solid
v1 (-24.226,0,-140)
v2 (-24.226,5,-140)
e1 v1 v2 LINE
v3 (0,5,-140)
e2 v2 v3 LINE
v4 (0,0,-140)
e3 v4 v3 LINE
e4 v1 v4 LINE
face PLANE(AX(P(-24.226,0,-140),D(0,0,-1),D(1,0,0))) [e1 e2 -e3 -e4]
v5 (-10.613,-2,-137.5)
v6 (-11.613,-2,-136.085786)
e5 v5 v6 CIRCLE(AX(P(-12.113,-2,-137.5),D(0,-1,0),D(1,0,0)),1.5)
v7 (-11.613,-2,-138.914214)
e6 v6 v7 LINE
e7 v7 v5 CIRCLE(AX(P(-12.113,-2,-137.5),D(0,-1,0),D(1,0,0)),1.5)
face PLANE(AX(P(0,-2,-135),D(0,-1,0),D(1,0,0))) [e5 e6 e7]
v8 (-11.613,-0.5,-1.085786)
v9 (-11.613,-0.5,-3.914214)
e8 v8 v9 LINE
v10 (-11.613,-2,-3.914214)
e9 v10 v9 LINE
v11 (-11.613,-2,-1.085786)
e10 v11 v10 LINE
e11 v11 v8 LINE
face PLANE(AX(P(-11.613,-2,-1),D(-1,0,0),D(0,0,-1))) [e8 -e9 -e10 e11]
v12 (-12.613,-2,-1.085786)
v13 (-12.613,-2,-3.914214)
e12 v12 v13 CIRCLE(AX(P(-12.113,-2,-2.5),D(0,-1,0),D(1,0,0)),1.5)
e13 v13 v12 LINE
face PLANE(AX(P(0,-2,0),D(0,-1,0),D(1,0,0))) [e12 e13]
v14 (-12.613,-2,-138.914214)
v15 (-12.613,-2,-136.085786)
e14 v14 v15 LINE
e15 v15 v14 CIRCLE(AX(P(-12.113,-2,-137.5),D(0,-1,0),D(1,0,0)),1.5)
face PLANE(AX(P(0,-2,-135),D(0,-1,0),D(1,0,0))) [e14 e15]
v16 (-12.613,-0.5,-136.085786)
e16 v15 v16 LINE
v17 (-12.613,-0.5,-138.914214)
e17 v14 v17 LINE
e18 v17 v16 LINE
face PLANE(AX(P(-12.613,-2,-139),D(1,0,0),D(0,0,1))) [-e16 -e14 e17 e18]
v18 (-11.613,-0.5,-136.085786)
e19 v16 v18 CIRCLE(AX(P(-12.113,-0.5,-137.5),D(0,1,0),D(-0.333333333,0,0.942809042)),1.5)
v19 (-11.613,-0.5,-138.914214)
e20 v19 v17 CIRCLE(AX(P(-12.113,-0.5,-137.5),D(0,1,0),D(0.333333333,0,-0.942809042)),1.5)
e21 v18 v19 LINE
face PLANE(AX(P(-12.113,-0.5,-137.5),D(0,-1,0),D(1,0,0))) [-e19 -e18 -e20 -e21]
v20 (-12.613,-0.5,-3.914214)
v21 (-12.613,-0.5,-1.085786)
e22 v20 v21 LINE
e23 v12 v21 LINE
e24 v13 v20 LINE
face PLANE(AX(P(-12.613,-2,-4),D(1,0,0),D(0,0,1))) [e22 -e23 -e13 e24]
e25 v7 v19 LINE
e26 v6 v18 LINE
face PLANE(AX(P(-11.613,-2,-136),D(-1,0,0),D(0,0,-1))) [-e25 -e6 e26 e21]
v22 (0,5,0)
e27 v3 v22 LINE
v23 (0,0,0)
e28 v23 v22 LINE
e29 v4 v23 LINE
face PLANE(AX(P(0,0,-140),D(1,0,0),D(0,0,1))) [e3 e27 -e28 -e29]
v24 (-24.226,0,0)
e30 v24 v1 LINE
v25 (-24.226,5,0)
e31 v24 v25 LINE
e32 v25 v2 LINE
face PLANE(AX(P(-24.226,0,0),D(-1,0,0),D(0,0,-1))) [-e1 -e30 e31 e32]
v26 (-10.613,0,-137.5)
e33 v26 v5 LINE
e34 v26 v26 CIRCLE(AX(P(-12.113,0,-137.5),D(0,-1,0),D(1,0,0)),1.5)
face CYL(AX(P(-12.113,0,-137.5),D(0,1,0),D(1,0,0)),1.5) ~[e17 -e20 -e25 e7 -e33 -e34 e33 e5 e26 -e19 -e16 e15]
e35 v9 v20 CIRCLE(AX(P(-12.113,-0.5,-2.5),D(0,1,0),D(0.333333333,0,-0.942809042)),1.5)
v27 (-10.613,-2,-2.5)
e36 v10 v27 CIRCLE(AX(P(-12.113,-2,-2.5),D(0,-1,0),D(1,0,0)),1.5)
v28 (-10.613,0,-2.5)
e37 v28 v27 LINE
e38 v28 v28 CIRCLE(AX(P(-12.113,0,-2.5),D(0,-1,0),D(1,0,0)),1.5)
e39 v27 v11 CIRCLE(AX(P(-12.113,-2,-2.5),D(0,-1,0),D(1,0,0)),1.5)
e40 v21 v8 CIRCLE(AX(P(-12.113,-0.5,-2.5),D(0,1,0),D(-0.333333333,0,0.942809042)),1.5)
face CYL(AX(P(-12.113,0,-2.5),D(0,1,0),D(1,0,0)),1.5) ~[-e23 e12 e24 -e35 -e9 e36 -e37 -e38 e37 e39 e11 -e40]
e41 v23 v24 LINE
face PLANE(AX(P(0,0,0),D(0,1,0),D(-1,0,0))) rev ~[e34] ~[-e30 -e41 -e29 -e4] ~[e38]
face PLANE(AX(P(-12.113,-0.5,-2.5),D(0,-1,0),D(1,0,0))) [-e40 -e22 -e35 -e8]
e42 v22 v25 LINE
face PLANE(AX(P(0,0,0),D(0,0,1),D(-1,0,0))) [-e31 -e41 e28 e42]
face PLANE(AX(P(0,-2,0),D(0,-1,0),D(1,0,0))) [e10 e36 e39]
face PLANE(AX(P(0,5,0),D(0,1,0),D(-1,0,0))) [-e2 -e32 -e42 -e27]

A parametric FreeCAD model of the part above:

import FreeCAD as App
import Part
import Sketcher

V = App.Vector
Q = App.Units.Quantity

doc = App.newDocument("Part")
body = doc.addObject("PartDesign::Body", "Body")

# Sketch on XZ plane
sketch1 = body.newObject("Sketcher::SketchObject", "Sketch")
sketch1.AttachmentSupport = (doc.getObject("XZ_Plane"), [""])
sketch1.MapMode = "FlatFace"
sketch1.addGeometry([
    Part.LineSegment(V(-24, 0, 0), V(0, 0, 0)),
    Part.LineSegment(V(0, 0, 0), V(0, -140, 0)),
    Part.LineSegment(V(0, -140, 0), V(-24, -140, 0)),
    Part.LineSegment(V(-24, -140, 0), V(-24, 0, 0)),
], False)
sketch1.addConstraint([
    Sketcher.Constraint("Coincident", 0, 2, 1, 1),
    Sketcher.Constraint("Coincident", 1, 2, 2, 1),
    Sketcher.Constraint("Coincident", 2, 2, 3, 1),
    Sketcher.Constraint("Coincident", 3, 2, 0, 1),
    Sketcher.Constraint("Horizontal", 0),
    Sketcher.Constraint("Vertical", 1),
    Sketcher.Constraint("Horizontal", 2),
    Sketcher.Constraint("Vertical", 3),
    Sketcher.Constraint("Coincident", 0, 2, -1, 1),
    Sketcher.Constraint("DistanceY", 1, 2, 1, 1, Q("140 mm")),
    Sketcher.Constraint("DistanceX", 0, 1, 0, 2, Q("24.226 mm")),
])
pad1 = body.newObject("PartDesign::Pad", "Pad")
pad1.Profile = sketch1
pad1.Length = 5
pad1.Reversed = True

# Sketch on XZ plane
sketch2 = body.newObject("Sketcher::SketchObject", "Sketch001")
sketch2.AttachmentSupport = (doc.getObject("XZ_Plane"), [""])
sketch2.MapMode = "FlatFace"
sketch2.addGeometry(Part.Circle(V(-12.1, -2.5, 0), V(0, 0, 1), 1.5), False)
sketch2.addConstraint([
    Sketcher.Constraint("Diameter", 0, Q("3 mm")),
    Sketcher.Constraint("DistanceY", 0, 3, -1, 1, Q("2.5 mm")),
    Sketcher.Constraint("DistanceX", 0, 3, -1, 1, Q("12.113 mm")),
])
pad2 = body.newObject("PartDesign::Pad", "Pad001")
pad2.Profile = sketch2
pad2.Length = 2

# Sketch on XZ plane
sketch3 = body.newObject("Sketcher::SketchObject", "Sketch002")
sketch3.AttachmentSupport = (doc.getObject("XZ_Plane"), [""])
sketch3.MapMode = "FlatFace"
sketch3.AttachmentOffset = App.Placement(V(0, 0, 2), App.Rotation())
sketch3.addGeometry([
    Part.LineSegment(V(-11.6, -1, 0), V(-12.6, -1, 0)),
    Part.LineSegment(V(-12.6, -1, 0), V(-12.6, -4, 0)),
    Part.LineSegment(V(-12.6, -4, 0), V(-11.6, -4, 0)),
    Part.LineSegment(V(-11.6, -4, 0), V(-11.6, -1, 0)),
], False)
sketch3.addConstraint([
    Sketcher.Constraint("Coincident", 0, 2, 1, 1),
    Sketcher.Constraint("Coincident", 1, 2, 2, 1),
    Sketcher.Constraint("Coincident", 2, 2, 3, 1),
    Sketcher.Constraint("Coincident", 3, 2, 0, 1),
    Sketcher.Constraint("Horizontal", 0),
    Sketcher.Constraint("Vertical", 1),
    Sketcher.Constraint("Horizontal", 2),
    Sketcher.Constraint("Vertical", 3),
    Sketcher.Constraint("DistanceX", 0, 2, 0, 1, Q("1 mm")),
    Sketcher.Constraint("DistanceY", 0, 2, -1, 1, Q("1 mm")),
    Sketcher.Constraint("DistanceY", 1, 2, 1, 1, Q("3 mm")),
    Sketcher.Constraint("DistanceX", 0, 2, -1, 1, Q("12.613 mm")),
])
pocket1 = body.newObject("PartDesign::Pocket", "Pocket")
pocket1.Profile = sketch3
pocket1.Length = 1.5
doc.recompute()

linearpattern = body.newObject("PartDesign::LinearPattern", "LinearPattern")
linearpattern.Originals = [pad2, pocket1]
linearpattern.Direction = (doc.getObject("Z_Axis"), [""])
linearpattern.Mode = "offset"
linearpattern.Offset = 135
linearpattern.Occurrences = 2
linearpattern.Reversed = True
body.Tip = linearpattern

doc.recompute()
